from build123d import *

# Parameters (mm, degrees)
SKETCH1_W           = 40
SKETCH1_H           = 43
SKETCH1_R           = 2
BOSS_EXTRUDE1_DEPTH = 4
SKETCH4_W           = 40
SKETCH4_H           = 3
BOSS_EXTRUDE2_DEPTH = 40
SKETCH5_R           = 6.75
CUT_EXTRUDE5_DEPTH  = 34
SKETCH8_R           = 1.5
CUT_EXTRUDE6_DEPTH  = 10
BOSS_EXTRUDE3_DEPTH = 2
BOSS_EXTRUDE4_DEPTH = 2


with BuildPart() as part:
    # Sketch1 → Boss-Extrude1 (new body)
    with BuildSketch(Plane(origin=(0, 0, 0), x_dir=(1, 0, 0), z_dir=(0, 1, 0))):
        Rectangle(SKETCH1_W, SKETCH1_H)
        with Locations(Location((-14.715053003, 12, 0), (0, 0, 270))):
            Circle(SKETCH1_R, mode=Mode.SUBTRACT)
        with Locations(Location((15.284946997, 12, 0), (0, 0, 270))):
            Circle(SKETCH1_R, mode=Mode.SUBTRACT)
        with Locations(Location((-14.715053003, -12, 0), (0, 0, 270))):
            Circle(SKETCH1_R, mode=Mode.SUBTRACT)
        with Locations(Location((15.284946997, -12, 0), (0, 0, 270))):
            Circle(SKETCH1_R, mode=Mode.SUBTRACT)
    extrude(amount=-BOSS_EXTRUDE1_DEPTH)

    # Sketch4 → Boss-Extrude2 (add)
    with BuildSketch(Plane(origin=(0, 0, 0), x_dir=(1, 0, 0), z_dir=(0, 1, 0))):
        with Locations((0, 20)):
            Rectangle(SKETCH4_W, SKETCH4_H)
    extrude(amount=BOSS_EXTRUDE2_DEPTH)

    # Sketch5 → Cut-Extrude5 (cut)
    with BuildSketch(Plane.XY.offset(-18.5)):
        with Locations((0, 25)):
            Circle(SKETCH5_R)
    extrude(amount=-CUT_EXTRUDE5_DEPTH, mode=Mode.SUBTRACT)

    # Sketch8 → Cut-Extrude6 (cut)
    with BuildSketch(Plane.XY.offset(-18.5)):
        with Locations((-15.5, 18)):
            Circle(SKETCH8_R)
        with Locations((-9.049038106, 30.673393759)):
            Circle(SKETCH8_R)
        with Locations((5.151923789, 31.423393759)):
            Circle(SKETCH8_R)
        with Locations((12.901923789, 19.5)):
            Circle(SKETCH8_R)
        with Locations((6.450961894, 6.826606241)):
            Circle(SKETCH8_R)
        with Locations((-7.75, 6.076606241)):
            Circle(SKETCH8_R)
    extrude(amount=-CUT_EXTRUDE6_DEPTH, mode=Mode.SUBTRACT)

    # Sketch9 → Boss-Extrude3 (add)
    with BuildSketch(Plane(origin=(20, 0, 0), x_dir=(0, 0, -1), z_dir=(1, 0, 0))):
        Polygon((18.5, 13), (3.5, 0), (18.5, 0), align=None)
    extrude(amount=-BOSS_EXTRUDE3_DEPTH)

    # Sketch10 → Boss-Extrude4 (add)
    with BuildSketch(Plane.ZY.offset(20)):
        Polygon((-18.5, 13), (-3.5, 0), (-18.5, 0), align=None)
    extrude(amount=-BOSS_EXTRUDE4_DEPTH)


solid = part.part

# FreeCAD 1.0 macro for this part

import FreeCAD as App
import Part
import Sketcher

doc = App.newDocument("Part")
body = doc.addObject("PartDesign::Body", "Body")

sketch1 = body.newObject("Sketcher::SketchObject", "Sketch")
sketch1.AttachmentSupport = (doc.getObject("XZ_Plane"), [""])
sketch1.MapMode = "FlatFace"
sketch1.addGeometry(Part.LineSegment(App.Vector(-20, -21.5, 0), App.Vector(-20, 21.5, 0)), False)
sketch1.addGeometry(Part.LineSegment(App.Vector(-20, 21.5, 0), App.Vector(20, 21.5, 0)), False)
sketch1.addGeometry(Part.LineSegment(App.Vector(20, 21.5, 0), App.Vector(20, -21.5, 0)), False)
sketch1.addGeometry(Part.LineSegment(App.Vector(20, -21.5, 0), App.Vector(-20, -21.5, 0)), False)
sketch1.addGeometry(Part.Circle(App.Vector(-14.715053, 12, 0), App.Vector(0, 0, 1), 2), False)
sketch1.addGeometry(Part.Circle(App.Vector(15.284947, 12, 0), App.Vector(0, 0, 1), 2), False)
sketch1.addGeometry(Part.Circle(App.Vector(-14.715053, -12, 0), App.Vector(0, 0, 1), 2), False)
sketch1.addGeometry(Part.Circle(App.Vector(15.284947, -12, 0), App.Vector(0, 0, 1), 2), False)
sketch1.addConstraint(Sketcher.Constraint("Coincident", 0, 2, 1, 1))
sketch1.addConstraint(Sketcher.Constraint("Coincident", 1, 2, 2, 1))
sketch1.addConstraint(Sketcher.Constraint("Coincident", 2, 2, 3, 1))
sketch1.addConstraint(Sketcher.Constraint("Coincident", 3, 2, 0, 1))
sketch1.addConstraint(Sketcher.Constraint("Vertical", 0))
sketch1.addConstraint(Sketcher.Constraint("Horizontal", 1))
sketch1.addConstraint(Sketcher.Constraint("Vertical", 2))
sketch1.addConstraint(Sketcher.Constraint("Horizontal", 3))
sketch1.addConstraint(Sketcher.Constraint("Equal", 4, 5))
sketch1.addConstraint(Sketcher.Constraint("Equal", 5, 6))
sketch1.addConstraint(Sketcher.Constraint("Equal", 6, 7))
sketch1.addConstraint(Sketcher.Constraint("Symmetric", 0, 2, 2, 2, -1, 1))
sketch1.addConstraint(Sketcher.Constraint("Symmetric", 4, 3, 6, 3, -1))
sketch1.addConstraint(Sketcher.Constraint("Symmetric", 5, 3, 7, 3, -1))
sketch1.addConstraint(Sketcher.Constraint("Horizontal", 4, 3, 5, 3))
sketch1.addConstraint(Sketcher.Constraint("Diameter", 4, 4.0))
sketch1.addConstraint(Sketcher.Constraint("DistanceX", 1, 1, 1, 2, 40.0))
sketch1.addConstraint(Sketcher.Constraint("DistanceY", 0, 1, 0, 2, 43.0))
sketch1.addConstraint(Sketcher.Constraint("DistanceY", -1, 1, 4, 3, 12.0))
sketch1.addConstraint(Sketcher.Constraint("DistanceX", 4, 3, 5, 3, 30.0))
sketch1.addConstraint(Sketcher.Constraint("DistanceX", 4, 3, -1, 1, 14.715053))
pad1 = body.newObject("PartDesign::Pad", "Pad")
pad1.Profile = sketch1
pad1.Length = 4

sketch2 = body.newObject("Sketcher::SketchObject", "Sketch001")
sketch2.AttachmentSupport = (doc.getObject("XZ_Plane"), [""])
sketch2.MapMode = "FlatFace"
sketch2.addGeometry(Part.LineSegment(App.Vector(-20, -21.5, 0), App.Vector(-20, -18.5, 0)), False)
sketch2.addGeometry(Part.LineSegment(App.Vector(-20, -18.5, 0), App.Vector(20, -18.5, 0)), False)
sketch2.addGeometry(Part.LineSegment(App.Vector(20, -18.5, 0), App.Vector(20, -21.5, 0)), False)
sketch2.addGeometry(Part.LineSegment(App.Vector(20, -21.5, 0), App.Vector(-20, -21.5, 0)), False)
sketch2.addConstraint(Sketcher.Constraint("Coincident", 0, 2, 1, 1))
sketch2.addConstraint(Sketcher.Constraint("Coincident", 1, 2, 2, 1))
sketch2.addConstraint(Sketcher.Constraint("Coincident", 2, 2, 3, 1))
sketch2.addConstraint(Sketcher.Constraint("Coincident", 3, 2, 0, 1))
sketch2.addConstraint(Sketcher.Constraint("Vertical", 0))
sketch2.addConstraint(Sketcher.Constraint("Horizontal", 1))
sketch2.addConstraint(Sketcher.Constraint("Vertical", 2))
sketch2.addConstraint(Sketcher.Constraint("Horizontal", 3))
sketch2.addConstraint(Sketcher.Constraint("DistanceX", 1, 1, 1, 2, 40.0))
sketch2.addConstraint(Sketcher.Constraint("DistanceY", 0, 1, 0, 2, 3.0))
sketch2.addConstraint(Sketcher.Constraint("DistanceX", 0, 2, -1, 1, 20.0))
sketch2.addConstraint(Sketcher.Constraint("DistanceY", 0, 2, -1, 1, 18.5))
pad2 = body.newObject("PartDesign::Pad", "Pad001")
pad2.Profile = sketch2
pad2.Length = 40
pad2.Reversed = True

sketch3 = body.newObject("Sketcher::SketchObject", "Sketch002")
sketch3.AttachmentSupport = (doc.getObject("XY_Plane"), [""])
sketch3.MapMode = "FlatFace"
sketch3.AttachmentOffset = App.Placement(App.Vector(0, 0, -18.5), App.Rotation())
sketch3.addGeometry(Part.Circle(App.Vector(0, 25, 0), App.Vector(0, 0, 1), 6.75), False)
sketch3.addConstraint(Sketcher.Constraint("PointOnObject", 0, 3, -2))
sketch3.addConstraint(Sketcher.Constraint("Diameter", 0, 13.5))
sketch3.addConstraint(Sketcher.Constraint("DistanceY", -1, 1, 0, 3, 25.0))
pocket1 = body.newObject("PartDesign::Pocket", "Pocket")
pocket1.Profile = sketch3
pocket1.Length = 34

sketch4 = body.newObject("Sketcher::SketchObject", "Sketch003")
sketch4.AttachmentSupport = (doc.getObject("XY_Plane"), [""])
sketch4.MapMode = "FlatFace"
sketch4.AttachmentOffset = App.Placement(App.Vector(0, 0, -18.5), App.Rotation())
sketch4.addGeometry(Part.Circle(App.Vector(-15.5, 18, 0), App.Vector(0, 0, 1), 1.5), False)
sketch4.addGeometry(Part.Circle(App.Vector(-9.049038, 30.673394, 0), App.Vector(0, 0, 1), 1.5), False)
sketch4.addGeometry(Part.Circle(App.Vector(5.151924, 31.423394, 0), App.Vector(0, 0, 1), 1.5), False)
sketch4.addGeometry(Part.Circle(App.Vector(12.901924, 19.5, 0), App.Vector(0, 0, 1), 1.5), False)
sketch4.addGeometry(Part.Circle(App.Vector(6.450962, 6.826606, 0), App.Vector(0, 0, 1), 1.5), False)
sketch4.addGeometry(Part.Circle(App.Vector(-7.75, 6.076606, 0), App.Vector(0, 0, 1), 1.5), False)
sketch4.addConstraint(Sketcher.Constraint("Equal", 0, 1))
sketch4.addConstraint(Sketcher.Constraint("Equal", 1, 2))
sketch4.addConstraint(Sketcher.Constraint("Equal", 2, 3))
sketch4.addConstraint(Sketcher.Constraint("Equal", 3, 4))
sketch4.addConstraint(Sketcher.Constraint("Equal", 4, 5))
sketch4.addConstraint(Sketcher.Constraint("Diameter", 0, 3.0))
sketch4.addConstraint(Sketcher.Constraint("DistanceY", -1, 1, 0, 3, 18.0))
sketch4.addConstraint(Sketcher.Constraint("DistanceX", 0, 3, -1, 1, 15.5))
sketch4.addConstraint(Sketcher.Constraint("DistanceY", -1, 1, 3, 3, 19.5))
sketch4.addConstraint(Sketcher.Constraint("DistanceX", 1, 3, 4, 3, 15.5))
sketch4.addConstraint(Sketcher.Constraint("DistanceX", 5, 3, -1, 1, 7.75))
sketch4.addConstraint(Sketcher.Constraint("DistanceY", 1, 3, 2, 3, 0.75))
sketch4.addConstraint(Sketcher.Constraint("DistanceX", 2, 3, 3, 3, 7.75))
sketch4.addConstraint(Sketcher.Constraint("DistanceY", 5, 3, 4, 3, 0.75))
sketch4.addConstraint(Sketcher.Constraint("DistanceX", 1, 3, -1, 1, 9.049038))
sketch4.addConstraint(Sketcher.Constraint("DistanceX", 1, 3, 2, 3, 14.200962))
sketch4.addConstraint(Sketcher.Constraint("DistanceY", -1, 1, 1, 3, 30.673394))
sketch4.addConstraint(Sketcher.Constraint("DistanceY", -1, 1, 4, 3, 6.826606))
pocket2 = body.newObject("PartDesign::Pocket", "Pocket001")
pocket2.Profile = sketch4
pocket2.Length = 10

sketch5 = body.newObject("Sketcher::SketchObject", "Sketch004")
sketch5.AttachmentSupport = (doc.getObject("YZ_Plane"), [""])
sketch5.MapMode = "FlatFace"
sketch5.AttachmentOffset = App.Placement(App.Vector(0, 0, 20), App.Rotation())
sketch5.addGeometry(Part.LineSegment(App.Vector(13, -18.5, 0), App.Vector(0, -3.5, 0)), False)
sketch5.addGeometry(Part.LineSegment(App.Vector(0, -3.5, 0), App.Vector(0, -18.5, 0)), False)
sketch5.addGeometry(Part.LineSegment(App.Vector(0, -18.5, 0), App.Vector(13, -18.5, 0)), False)
sketch5.addConstraint(Sketcher.Constraint("Coincident", 0, 2, 1, 1))
sketch5.addConstraint(Sketcher.Constraint("Coincident", 1, 2, 2, 1))
sketch5.addConstraint(Sketcher.Constraint("Coincident", 2, 2, 0, 1))
sketch5.addConstraint(Sketcher.Constraint("Vertical", 1))
sketch5.addConstraint(Sketcher.Constraint("Horizontal", 2))
sketch5.addConstraint(Sketcher.Constraint("PointOnObject", 0, 2, -2))
sketch5.addConstraint(Sketcher.Constraint("DistanceX", 2, 1, 2, 2, 13.0))
sketch5.addConstraint(Sketcher.Constraint("DistanceY", 1, 2, 1, 1, 15.0))
sketch5.addConstraint(Sketcher.Constraint("DistanceY", 0, 2, -1, 1, 3.5))
pad3 = body.newObject("PartDesign::Pad", "Pad002")
pad3.Profile = sketch5
pad3.Length = 2
pad3.Reversed = True

sketch6 = body.newObject("Sketcher::SketchObject", "Sketch005")
sketch6.AttachmentSupport = (doc.getObject("YZ_Plane"), [""])
sketch6.MapMode = "FlatFace"
sketch6.AttachmentOffset = App.Placement(App.Vector(0, 0, -20), App.Rotation())
sketch6.addGeometry(Part.LineSegment(App.Vector(0, -3.5, 0), App.Vector(13, -18.5, 0)), False)
sketch6.addGeometry(Part.LineSegment(App.Vector(13, -18.5, 0), App.Vector(0, -18.5, 0)), False)
sketch6.addGeometry(Part.LineSegment(App.Vector(0, -18.5, 0), App.Vector(0, -3.5, 0)), False)
sketch6.addConstraint(Sketcher.Constraint("Coincident", 0, 2, 1, 1))
sketch6.addConstraint(Sketcher.Constraint("Coincident", 1, 2, 2, 1))
sketch6.addConstraint(Sketcher.Constraint("Coincident", 2, 2, 0, 1))
sketch6.addConstraint(Sketcher.Constraint("Horizontal", 1))
sketch6.addConstraint(Sketcher.Constraint("Vertical", 2))
sketch6.addConstraint(Sketcher.Constraint("PointOnObject", 1, 2, -2))
sketch6.addConstraint(Sketcher.Constraint("DistanceX", 1, 2, 1, 1, 13.0))
sketch6.addConstraint(Sketcher.Constraint("DistanceY", 2, 1, 2, 2, 15.0))
sketch6.addConstraint(Sketcher.Constraint("DistanceY", 0, 2, -1, 1, 18.5))
pad4 = body.newObject("PartDesign::Pad", "Pad003")
pad4.Profile = sketch6
pad4.Length = 2

doc.recompute()
